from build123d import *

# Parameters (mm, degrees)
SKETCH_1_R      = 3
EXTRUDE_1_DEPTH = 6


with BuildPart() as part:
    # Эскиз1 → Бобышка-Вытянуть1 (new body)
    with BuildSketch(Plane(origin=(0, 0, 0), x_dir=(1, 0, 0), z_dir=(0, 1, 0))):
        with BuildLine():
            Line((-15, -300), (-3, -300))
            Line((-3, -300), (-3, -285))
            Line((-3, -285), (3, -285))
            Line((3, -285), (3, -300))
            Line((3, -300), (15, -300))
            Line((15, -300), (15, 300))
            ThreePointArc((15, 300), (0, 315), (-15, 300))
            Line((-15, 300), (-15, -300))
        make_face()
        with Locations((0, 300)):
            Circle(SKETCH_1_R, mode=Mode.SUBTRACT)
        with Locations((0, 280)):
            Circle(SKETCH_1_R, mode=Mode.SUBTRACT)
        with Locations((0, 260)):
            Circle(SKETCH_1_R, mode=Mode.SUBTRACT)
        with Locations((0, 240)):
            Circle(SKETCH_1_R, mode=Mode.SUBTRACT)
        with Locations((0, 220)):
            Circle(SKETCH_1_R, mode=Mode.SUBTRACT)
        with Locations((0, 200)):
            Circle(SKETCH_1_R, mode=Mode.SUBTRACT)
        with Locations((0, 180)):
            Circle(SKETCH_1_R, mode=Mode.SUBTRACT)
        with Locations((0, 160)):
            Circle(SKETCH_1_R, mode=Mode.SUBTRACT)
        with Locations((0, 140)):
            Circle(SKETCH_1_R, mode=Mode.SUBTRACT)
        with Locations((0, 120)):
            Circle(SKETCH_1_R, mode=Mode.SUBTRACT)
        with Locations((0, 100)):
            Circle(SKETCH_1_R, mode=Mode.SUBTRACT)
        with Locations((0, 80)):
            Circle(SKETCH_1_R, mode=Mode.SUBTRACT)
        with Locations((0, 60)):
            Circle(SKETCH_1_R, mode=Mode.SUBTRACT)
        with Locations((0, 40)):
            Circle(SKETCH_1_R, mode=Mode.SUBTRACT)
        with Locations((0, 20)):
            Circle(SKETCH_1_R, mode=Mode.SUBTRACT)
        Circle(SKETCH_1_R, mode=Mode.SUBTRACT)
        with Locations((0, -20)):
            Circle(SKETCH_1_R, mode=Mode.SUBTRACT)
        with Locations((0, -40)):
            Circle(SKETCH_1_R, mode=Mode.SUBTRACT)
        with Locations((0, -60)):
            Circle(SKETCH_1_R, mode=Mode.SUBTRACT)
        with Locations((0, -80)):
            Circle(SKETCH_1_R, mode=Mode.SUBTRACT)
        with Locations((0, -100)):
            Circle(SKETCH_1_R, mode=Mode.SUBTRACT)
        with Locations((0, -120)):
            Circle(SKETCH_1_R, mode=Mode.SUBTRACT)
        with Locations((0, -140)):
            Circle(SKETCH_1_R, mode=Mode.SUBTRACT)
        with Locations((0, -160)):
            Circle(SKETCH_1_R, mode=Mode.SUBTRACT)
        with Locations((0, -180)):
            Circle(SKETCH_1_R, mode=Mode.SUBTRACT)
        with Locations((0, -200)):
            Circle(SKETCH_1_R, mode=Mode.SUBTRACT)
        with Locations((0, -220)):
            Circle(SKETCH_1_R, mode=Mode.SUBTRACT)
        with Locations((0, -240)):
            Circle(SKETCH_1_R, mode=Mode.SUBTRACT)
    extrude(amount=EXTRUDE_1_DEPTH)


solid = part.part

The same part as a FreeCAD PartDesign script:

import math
import FreeCAD as App
import Part
import Sketcher

V = App.Vector

doc = App.newDocument("Part")
body = doc.addObject("PartDesign::Body", "Body")

# Sketch on XZ plane
sketch1 = doc.addObject("Sketcher::SketchObject", "Sketch")
body.addObject(sketch1)
sketch1.AttachmentSupport = (doc.XZ_Plane, [""])
sketch1.MapMode = "FlatFace"
sketch1.addGeometry([
    Part.LineSegment(V(-15, 300, 0), V(-3, 300, 0)),  # 0
    Part.LineSegment(V(-3, 300, 0), V(-3, 285, 0)),  # 1
    Part.LineSegment(V(-3, 285, 0), V(3, 285, 0)),  # 2
    Part.LineSegment(V(3, 285, 0), V(3, 300, 0)),  # 3
    Part.LineSegment(V(3, 300, 0), V(15, 300, 0)),  # 4
    Part.LineSegment(V(15, 300, 0), V(15, -300, 0)),  # 5
    Part.ArcOfCircle(Part.Circle(V(0, -300, 0), V(0, 0, 1), 15), math.radians(180), math.radians(360)),  # 6
    Part.LineSegment(V(-15, -300, 0), V(-15, 300, 0)),  # 7
    Part.Circle(V(0, 240, 0), V(0, 0, 1), 3),  # 8
    Part.Circle(V(0, 220, 0), V(0, 0, 1), 3),  # 9
    Part.Circle(V(0, 200, 0), V(0, 0, 1), 3),  # 10
    Part.Circle(V(0, 180, 0), V(0, 0, 1), 3),  # 11
    Part.Circle(V(0, 160, 0), V(0, 0, 1), 3),  # 12
    Part.Circle(V(0, 140, 0), V(0, 0, 1), 3),  # 13
    Part.Circle(V(0, 120, 0), V(0, 0, 1), 3),  # 14
    Part.Circle(V(0, 100, 0), V(0, 0, 1), 3),  # 15
    Part.Circle(V(0, 80, 0), V(0, 0, 1), 3),  # 16
    Part.Circle(V(0, 60, 0), V(0, 0, 1), 3),  # 17
    Part.Circle(V(0, 40, 0), V(0, 0, 1), 3),  # 18
    Part.Circle(V(0, 20, 0), V(0, 0, 1), 3),  # 19
    Part.Circle(V(0, 0, 0), V(0, 0, 1), 3),  # 20
    Part.Circle(V(0, -20, 0), V(0, 0, 1), 3),  # 21
    Part.Circle(V(0, -40, 0), V(0, 0, 1), 3),  # 22
    Part.Circle(V(0, -60, 0), V(0, 0, 1), 3),  # 23
    Part.Circle(V(0, -80, 0), V(0, 0, 1), 3),  # 24
    Part.Circle(V(0, -100, 0), V(0, 0, 1), 3),  # 25
    Part.Circle(V(0, -120, 0), V(0, 0, 1), 3),  # 26
    Part.Circle(V(0, -140, 0), V(0, 0, 1), 3),  # 27
    Part.Circle(V(0, -160, 0), V(0, 0, 1), 3),  # 28
    Part.Circle(V(0, -180, 0), V(0, 0, 1), 3),  # 29
    Part.Circle(V(0, -200, 0), V(0, 0, 1), 3),  # 30
    Part.Circle(V(0, -220, 0), V(0, 0, 1), 3),  # 31
    Part.Circle(V(0, -240, 0), V(0, 0, 1), 3),  # 32
    Part.Circle(V(0, -260, 0), V(0, 0, 1), 3),  # 33
    Part.Circle(V(0, -280, 0), V(0, 0, 1), 3),  # 34
    Part.Circle(V(0, -300, 0), V(0, 0, 1), 3),  # 35
], False)
sketch1.addConstraint([
    Sketcher.Constraint("Coincident", 0, 2, 1, 1),
    Sketcher.Constraint("Coincident", 1, 2, 2, 1),
    Sketcher.Constraint("Coincident", 2, 2, 3, 1),
    Sketcher.Constraint("Coincident", 3, 2, 4, 1),
    Sketcher.Constraint("Coincident", 4, 2, 5, 1),
    Sketcher.Constraint("Tangent", 5, 2, 6, 2),
    Sketcher.Constraint("Tangent", 6, 1, 7, 1),
    Sketcher.Constraint("Coincident", 7, 2, 0, 1),
    Sketcher.Constraint("Horizontal", 0),
    Sketcher.Constraint("Vertical", 1),
    Sketcher.Constraint("Horizontal", 2),
    Sketcher.Constraint("Vertical", 3),
    Sketcher.Constraint("Horizontal", 4),
    Sketcher.Constraint("Vertical", 5),
    Sketcher.Constraint("Vertical", 7),
    Sketcher.Constraint("Coincident", 20, 3, -1, 1),
    Sketcher.Constraint("Coincident", 35, 3, 6, 3),
    Sketcher.Constraint("Equal", 8, 9),
    Sketcher.Constraint("Equal", 9, 10),
    Sketcher.Constraint("Equal", 10, 11),
    Sketcher.Constraint("Equal", 11, 12),
    Sketcher.Constraint("Equal", 12, 13),
    Sketcher.Constraint("Equal", 13, 14),
    Sketcher.Constraint("Equal", 14, 15),
    Sketcher.Constraint("Equal", 15, 16),
    Sketcher.Constraint("Equal", 16, 17),
    Sketcher.Constraint("Equal", 17, 18),
    Sketcher.Constraint("Equal", 18, 19),
    Sketcher.Constraint("Equal", 19, 20),
    Sketcher.Constraint("Equal", 20, 21),
    Sketcher.Constraint("Equal", 21, 22),
    Sketcher.Constraint("Equal", 22, 23),
    Sketcher.Constraint("Equal", 23, 24),
    Sketcher.Constraint("Equal", 24, 25),
    Sketcher.Constraint("Equal", 25, 26),
    Sketcher.Constraint("Equal", 26, 27),
    Sketcher.Constraint("Equal", 27, 28),
    Sketcher.Constraint("Equal", 28, 29),
    Sketcher.Constraint("Equal", 29, 30),
    Sketcher.Constraint("Equal", 30, 31),
    Sketcher.Constraint("Equal", 31, 32),
    Sketcher.Constraint("Equal", 32, 33),
    Sketcher.Constraint("Equal", 33, 34),
    Sketcher.Constraint("Equal", 34, 35),
    Sketcher.Constraint("Symmetric", 19, 3, 21, 3, -1, 1),
    Sketcher.Constraint("Symmetric", 18, 3, 22, 3, -1, 1),
    Sketcher.Constraint("Symmetric", 17, 3, 23, 3, -1, 1),
    Sketcher.Constraint("Symmetric", 16, 3, 24, 3, -1, 1),
    Sketcher.Constraint("Symmetric", 15, 3, 25, 3, -1, 1),
    Sketcher.Constraint("Symmetric", 14, 3, 26, 3, -1, 1),
    Sketcher.Constraint("Symmetric", 13, 3, 27, 3, -1, 1),
    Sketcher.Constraint("Symmetric", 12, 3, 28, 3, -1, 1),
    Sketcher.Constraint("Symmetric", 11, 3, 29, 3, -1, 1),
    Sketcher.Constraint("Symmetric", 10, 3, 30, 3, -1, 1),
    Sketcher.Constraint("Symmetric", 9, 3, 31, 3, -1, 1),
    Sketcher.Constraint("Symmetric", 8, 3, 32, 3, -1, 1),
    Sketcher.Constraint("Symmetric", 4, 2, 6, 1, -1, 1),
    Sketcher.Constraint("Symmetric", 0, 2, 3, 2, -2),
    Sketcher.Constraint("PointOnObject", 8, 3, -2),
    Sketcher.Constraint("PointOnObject", 9, 3, -2),
    Sketcher.Constraint("PointOnObject", 10, 3, -2),
    Sketcher.Constraint("PointOnObject", 11, 3, -2),
    Sketcher.Constraint("PointOnObject", 12, 3, -2),
    Sketcher.Constraint("PointOnObject", 13, 3, -2),
    Sketcher.Constraint("PointOnObject", 14, 3, -2),
    Sketcher.Constraint("PointOnObject", 15, 3, -2),
    Sketcher.Constraint("PointOnObject", 16, 3, -2),
    Sketcher.Constraint("PointOnObject", 17, 3, -2),
    Sketcher.Constraint("PointOnObject", 18, 3, -2),
    Sketcher.Constraint("PointOnObject", 19, 3, -2),
    Sketcher.Constraint("PointOnObject", 33, 3, -2),
    Sketcher.Constraint("PointOnObject", 34, 3, -2),
    Sketcher.Constraint("Diameter", 8, 6.0),
    Sketcher.Constraint("Radius", 6, 15.0),
    Sketcher.Constraint("DistanceX", 0, 1, 0, 2, 12.0),
    Sketcher.Constraint("DistanceY", 1, 2, 1, 1, 15.0),
    Sketcher.Constraint("DistanceY", 5, 2, 5, 1, 600.0),
    Sketcher.Constraint("DistanceY", -1, 1, 8, 3, 240.0),
    Sketcher.Constraint("DistanceY", -1, 1, 9, 3, 220.0),
    Sketcher.Constraint("DistanceY", -1, 1, 10, 3, 200.0),
    Sketcher.Constraint("DistanceY", -1, 1, 11, 3, 180.0),
    Sketcher.Constraint("DistanceY", -1, 1, 12, 3, 160.0),
    Sketcher.Constraint("DistanceY", -1, 1, 13, 3, 140.0),
    Sketcher.Constraint("DistanceY", -1, 1, 14, 3, 120.0),
    Sketcher.Constraint("DistanceY", -1, 1, 15, 3, 100.0),
    Sketcher.Constraint("DistanceY", -1, 1, 16, 3, 80.0),
    Sketcher.Constraint("DistanceY", -1, 1, 17, 3, 60.0),
    Sketcher.Constraint("DistanceY", -1, 1, 18, 3, 40.0),
    Sketcher.Constraint("DistanceY", -1, 1, 19, 3, 20.0),
    Sketcher.Constraint("DistanceY", 33, 3, -1, 1, 260.0),
    Sketcher.Constraint("DistanceY", 34, 3, -1, 1, 280.0),
])
pad1 = doc.addObject("PartDesign::Pad", "Pad")
body.addObject(pad1)
pad1.Profile = sketch1
pad1.Length = 6
pad1.Reversed = True

doc.recompute()
